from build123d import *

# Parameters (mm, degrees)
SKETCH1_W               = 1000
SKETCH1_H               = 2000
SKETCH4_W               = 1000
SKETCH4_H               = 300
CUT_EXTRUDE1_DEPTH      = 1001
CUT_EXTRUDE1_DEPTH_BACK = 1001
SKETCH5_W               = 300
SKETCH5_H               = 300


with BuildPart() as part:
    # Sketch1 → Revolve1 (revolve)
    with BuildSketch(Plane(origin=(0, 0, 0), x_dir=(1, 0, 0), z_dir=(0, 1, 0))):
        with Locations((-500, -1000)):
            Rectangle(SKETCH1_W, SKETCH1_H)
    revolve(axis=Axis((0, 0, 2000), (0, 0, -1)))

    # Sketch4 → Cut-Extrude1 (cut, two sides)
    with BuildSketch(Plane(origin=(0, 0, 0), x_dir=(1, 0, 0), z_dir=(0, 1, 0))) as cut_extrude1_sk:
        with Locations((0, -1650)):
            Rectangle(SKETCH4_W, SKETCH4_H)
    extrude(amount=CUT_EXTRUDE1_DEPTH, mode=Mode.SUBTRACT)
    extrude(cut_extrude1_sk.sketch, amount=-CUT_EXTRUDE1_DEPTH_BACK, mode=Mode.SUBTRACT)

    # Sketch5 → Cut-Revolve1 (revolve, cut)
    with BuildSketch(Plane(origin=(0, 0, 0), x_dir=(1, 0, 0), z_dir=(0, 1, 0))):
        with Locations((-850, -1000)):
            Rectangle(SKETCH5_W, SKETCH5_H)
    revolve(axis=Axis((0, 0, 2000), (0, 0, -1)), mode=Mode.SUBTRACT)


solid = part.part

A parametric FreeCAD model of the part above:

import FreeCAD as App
import Part
import Sketcher
from FreeCAD import Vector


def add_polygon(sketch, points):
    """Adds a closed chain of lines whose ends are joined by coincident constraints."""
    first, n = sketch.GeometryCount, len(points)
    for a, b in zip(points, points[1:] + points[:1]):
        sketch.addGeometry(Part.LineSegment(App.Vector(*a, 0), App.Vector(*b, 0)), False)
    for i in range(n):
        sketch.addConstraint(Sketcher.Constraint("Coincident", first + i, 2, first + (i + 1) % n, 1))

doc = App.newDocument("Part")
body = doc.addObject("PartDesign::Body", "Body")

sketch1 = body.newObject("Sketcher::SketchObject", "Sketch")
sketch1.AttachmentSupport = (doc.getObject("XZ_Plane"), [""])
sketch1.MapMode = "FlatFace"
add_polygon(sketch1, [(-1000, 0), (-1000, 2000), (0, 2000), (0, 0)])
sketch1.addConstraint([
    Sketcher.Constraint("Vertical", 0),
    Sketcher.Constraint("Horizontal", 1),
    Sketcher.Constraint("Vertical", 2),
    Sketcher.Constraint("Horizontal", 3),
    Sketcher.Constraint("Coincident", 2, 2, -1, 1),
    Sketcher.Constraint("DistanceX", 1, 1, 1, 2, 1000.0),
    Sketcher.Constraint("DistanceY", 0, 1, 0, 2, 2000.0),
])
revolution = body.newObject("PartDesign::Revolution", "Revolution")
revolution.Profile = sketch1
revolution.ReferenceAxis = (sketch1, ["V_Axis"])
revolution.Angle = 360

sketch2 = body.newObject("Sketcher::SketchObject", "Sketch001")
sketch2.AttachmentSupport = (doc.getObject("XZ_Plane"), [""])
sketch2.MapMode = "FlatFace"
add_polygon(sketch2, [(-500, 1500), (-500, 1800), (500, 1800), (500, 1500)])
sketch2.addConstraint([
    Sketcher.Constraint("Vertical", 0),
    Sketcher.Constraint("Horizontal", 1),
    Sketcher.Constraint("Vertical", 2),
    Sketcher.Constraint("Horizontal", 3),
    Sketcher.Constraint("DistanceX", 1, 1, 1, 2, 1000.0),
    Sketcher.Constraint("DistanceY", 0, 1, 0, 2, 300.0),
    Sketcher.Constraint("DistanceX", 0, 2, -1, 1, 500.0),
    Sketcher.Constraint("DistanceY", -1, 1, 0, 2, 1800.0),
])
pocket1 = body.newObject("PartDesign::Pocket", "Pocket")
pocket1.Profile = sketch2
pocket1.Type = "ThroughAll"
pocket1.Midplane = True

sketch3 = body.newObject("Sketcher::SketchObject", "Sketch002")
sketch3.AttachmentSupport = (doc.getObject("XZ_Plane"), [""])
sketch3.MapMode = "FlatFace"
add_polygon(sketch3, [(-1000, 850), (-1000, 1150), (-700, 1150), (-700, 850)])
sketch3.addConstraint([
    Sketcher.Constraint("Vertical", 0),
    Sketcher.Constraint("Horizontal", 1),
    Sketcher.Constraint("Vertical", 2),
    Sketcher.Constraint("Horizontal", 3),
    Sketcher.Constraint("Equal", 3, 0),
    Sketcher.Constraint("DistanceX", 1, 1, 1, 2, 300.0),
    Sketcher.Constraint("DistanceX", 0, 2, -1, 1, 1000.0),
    Sketcher.Constraint("DistanceY", -1, 1, 0, 2, 1150.0),
])
groove = body.newObject("PartDesign::Groove", "Groove")
groove.Profile = sketch3
groove.ReferenceAxis = (sketch3, ["V_Axis"])
groove.Angle = 360

doc.recompute()
